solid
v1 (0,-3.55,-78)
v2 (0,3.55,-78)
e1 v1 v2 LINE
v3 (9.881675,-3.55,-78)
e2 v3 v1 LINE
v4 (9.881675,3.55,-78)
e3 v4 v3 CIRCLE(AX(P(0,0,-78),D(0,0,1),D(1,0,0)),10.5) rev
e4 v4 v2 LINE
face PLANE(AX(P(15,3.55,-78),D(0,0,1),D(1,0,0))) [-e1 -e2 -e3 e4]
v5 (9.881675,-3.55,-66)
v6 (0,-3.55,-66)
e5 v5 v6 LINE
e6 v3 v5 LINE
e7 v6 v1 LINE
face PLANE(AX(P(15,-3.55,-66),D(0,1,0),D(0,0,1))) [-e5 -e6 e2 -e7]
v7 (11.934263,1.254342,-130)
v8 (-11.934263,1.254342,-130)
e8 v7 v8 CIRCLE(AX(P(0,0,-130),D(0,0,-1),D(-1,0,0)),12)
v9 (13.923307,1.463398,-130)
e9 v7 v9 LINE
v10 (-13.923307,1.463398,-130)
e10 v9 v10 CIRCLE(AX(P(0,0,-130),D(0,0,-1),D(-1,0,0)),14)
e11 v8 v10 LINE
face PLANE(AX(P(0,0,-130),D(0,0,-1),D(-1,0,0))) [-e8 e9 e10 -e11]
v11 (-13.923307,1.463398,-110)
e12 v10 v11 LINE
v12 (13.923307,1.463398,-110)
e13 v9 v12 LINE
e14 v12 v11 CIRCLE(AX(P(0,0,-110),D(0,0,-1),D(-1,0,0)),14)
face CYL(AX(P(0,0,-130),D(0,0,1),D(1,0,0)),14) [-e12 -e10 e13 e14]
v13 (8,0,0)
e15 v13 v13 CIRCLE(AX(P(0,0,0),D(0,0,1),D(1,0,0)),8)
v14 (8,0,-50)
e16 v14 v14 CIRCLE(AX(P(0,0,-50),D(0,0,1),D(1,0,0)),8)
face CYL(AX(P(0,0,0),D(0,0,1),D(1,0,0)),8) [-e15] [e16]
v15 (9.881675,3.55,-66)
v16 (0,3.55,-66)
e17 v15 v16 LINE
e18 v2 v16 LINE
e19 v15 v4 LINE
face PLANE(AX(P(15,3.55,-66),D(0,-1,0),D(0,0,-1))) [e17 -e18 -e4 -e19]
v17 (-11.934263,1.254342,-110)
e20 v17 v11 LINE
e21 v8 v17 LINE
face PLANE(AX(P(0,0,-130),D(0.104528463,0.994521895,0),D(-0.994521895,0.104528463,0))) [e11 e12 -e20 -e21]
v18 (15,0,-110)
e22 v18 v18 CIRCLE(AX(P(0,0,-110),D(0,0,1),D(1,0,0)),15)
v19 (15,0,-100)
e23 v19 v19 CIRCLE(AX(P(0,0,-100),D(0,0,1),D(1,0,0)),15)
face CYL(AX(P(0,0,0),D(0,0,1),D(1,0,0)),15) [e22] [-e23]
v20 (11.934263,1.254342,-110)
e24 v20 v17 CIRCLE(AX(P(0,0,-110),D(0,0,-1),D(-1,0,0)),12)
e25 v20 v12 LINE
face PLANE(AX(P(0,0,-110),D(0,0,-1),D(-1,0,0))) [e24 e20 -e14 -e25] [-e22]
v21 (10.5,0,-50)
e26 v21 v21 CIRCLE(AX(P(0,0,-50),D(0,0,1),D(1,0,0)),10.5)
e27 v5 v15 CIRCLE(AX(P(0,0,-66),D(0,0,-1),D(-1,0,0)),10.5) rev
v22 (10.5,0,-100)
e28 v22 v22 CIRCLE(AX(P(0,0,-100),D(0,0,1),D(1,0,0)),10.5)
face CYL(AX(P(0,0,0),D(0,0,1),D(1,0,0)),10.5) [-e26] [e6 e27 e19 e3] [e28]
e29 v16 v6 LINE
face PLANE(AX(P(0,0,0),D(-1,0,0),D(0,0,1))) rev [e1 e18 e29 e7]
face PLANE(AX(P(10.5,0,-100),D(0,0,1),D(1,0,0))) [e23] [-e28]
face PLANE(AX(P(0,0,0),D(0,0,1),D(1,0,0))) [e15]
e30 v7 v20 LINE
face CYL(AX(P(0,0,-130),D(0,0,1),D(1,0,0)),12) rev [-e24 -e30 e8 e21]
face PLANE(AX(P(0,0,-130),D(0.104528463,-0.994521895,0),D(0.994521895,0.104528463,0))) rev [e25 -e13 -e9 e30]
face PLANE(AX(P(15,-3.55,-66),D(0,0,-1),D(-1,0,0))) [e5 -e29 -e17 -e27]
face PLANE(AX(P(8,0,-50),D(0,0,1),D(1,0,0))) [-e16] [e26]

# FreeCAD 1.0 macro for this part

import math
import FreeCAD as App
import Part
import Sketcher

V = App.Vector
Q = App.Units.Quantity


def add_polygon(sketch, points):
    """Adds a closed chain of lines whose ends are joined by coincident constraints."""
    first, n = sketch.GeometryCount, len(points)
    for a, b in zip(points, points[1:] + points[:1]):
        sketch.addGeometry(Part.LineSegment(App.Vector(*a, 0), App.Vector(*b, 0)), False)
    for i in range(n):
        sketch.addConstraint(Sketcher.Constraint("Coincident", first + i, 2, first + (i + 1) % n, 1))

doc = App.newDocument("Part")
body = doc.addObject("PartDesign::Body", "Body")

# Sketch on XZ plane
sketch1 = body.newObject("Sketcher::SketchObject", "Sketch")
sketch1.AttachmentSupport = (doc.getObject("XZ_Plane"), [""])
sketch1.MapMode = "FlatFace"
add_polygon(sketch1, [(0, 0), (8, 0), (8, -50), (10.5, -50), (10.5, -100), (15, -100), (15, -110), (0, -110)])  # lines 0-7
sketch1.addConstraint([
    Sketcher.Constraint("Horizontal", 0),
    Sketcher.Constraint("Vertical", 1),
    Sketcher.Constraint("Horizontal", 2),
    Sketcher.Constraint("Vertical", 3),
    Sketcher.Constraint("Horizontal", 4),
    Sketcher.Constraint("Vertical", 5),
    Sketcher.Constraint("Horizontal", 6),
    Sketcher.Constraint("Vertical", 7),
    Sketcher.Constraint("Coincident", 7, 2, -1, 1),
    Sketcher.Constraint("Equal", 1, 3),
    Sketcher.Constraint("DistanceX", 0, 1, 0, 2, Q("8 mm")),
    Sketcher.Constraint("DistanceX", 6, 2, 6, 1, Q("15 mm")),
    Sketcher.Constraint("DistanceY", 1, 2, 1, 1, Q("50 mm")),
    Sketcher.Constraint("DistanceY", 5, 2, 5, 1, Q("10 mm")),
    Sketcher.Constraint("DistanceX", 2, 1, 2, 2, Q("2.5 mm")),
])
revolution = body.newObject("PartDesign::Revolution", "Revolution")
revolution.Profile = sketch1
revolution.ReferenceAxis = (sketch1, ["V_Axis"])
revolution.Angle = 360

# Sketch on XY plane
sketch2 = body.newObject("Sketcher::SketchObject", "Sketch001")
sketch2.AttachmentSupport = (doc.getObject("XY_Plane"), [""])
sketch2.MapMode = "FlatFace"
sketch2.AttachmentOffset = App.Placement(V(0, 0, -110), App.Rotation())
sketch2.addGeometry([
    Part.ArcOfCircle(Part.Circle(V(0, 0, 0), V(0, 0, 1), 12), math.radians(0), math.radians(6)),  # 0
    Part.LineSegment(V(11.9, 1.3, 0), V(13.9, 1.5, 0)),  # 1
    Part.ArcOfCircle(Part.Circle(V(0, 0, 0), V(0, 0, 1), 14), math.radians(0), math.radians(6)),  # 2
    Part.ArcOfCircle(Part.Circle(V(0, 0, 0), V(0, 0, 1), 14), math.radians(180), math.radians(360)),  # 3
    Part.ArcOfCircle(Part.Circle(V(0, 0, 0), V(0, 0, 1), 14), math.radians(174), math.radians(180)),  # 4
    Part.LineSegment(V(-13.9, 1.5, 0), V(-11.9, 1.3, 0)),  # 5
    Part.ArcOfCircle(Part.Circle(V(0, 0, 0), V(0, 0, 1), 12), math.radians(174), math.radians(180)),  # 6
    Part.ArcOfCircle(Part.Circle(V(0, 0, 0), V(0, 0, 1), 12), math.radians(180), math.radians(360)),  # 7
], False)
sketch2.addConstraint([
    Sketcher.Constraint("Coincident", 0, 2, 1, 1),
    Sketcher.Constraint("Coincident", 1, 2, 2, 2),
    Sketcher.Constraint("Tangent", 2, 1, 3, 2),
    Sketcher.Constraint("Tangent", 3, 1, 4, 2),
    Sketcher.Constraint("Coincident", 4, 1, 5, 1),
    Sketcher.Constraint("Coincident", 5, 2, 6, 1),
    Sketcher.Constraint("Tangent", 6, 2, 7, 1),
    Sketcher.Constraint("Tangent", 7, 2, 0, 1),
    Sketcher.Constraint("Coincident", 0, 3, -1, 1),
    Sketcher.Constraint("Coincident", 2, 3, -1, 1),
    Sketcher.Constraint("Equal", 2, 3),
    Sketcher.Constraint("Equal", 3, 4),
    Sketcher.Constraint("Equal", 0, 6),
    Sketcher.Constraint("Equal", 6, 7),
    Sketcher.Constraint("PointOnObject", 2, 1, -1),
    Sketcher.Constraint("PointOnObject", 3, 1, -1),
    Sketcher.Constraint("PointOnObject", 6, 2, -1),
    Sketcher.Constraint("PointOnObject", 7, 2, -1),
    Sketcher.Constraint("Horizontal", 1, 2, 4, 1),
    Sketcher.Constraint("Horizontal", 0, 2, 5, 2),
    Sketcher.Constraint("Radius", 0, Q("12 mm")),
    Sketcher.Constraint("Radius", 2, Q("14 mm")),
    Sketcher.Constraint("Angle", 1, Q("6 deg")),
    Sketcher.Constraint("DistanceY", -1, 1, 1, 2, Q("1.463398 mm")),
])
pad1 = body.newObject("PartDesign::Pad", "Pad")
pad1.Profile = sketch2
pad1.Length = 20
pad1.Reversed = True

# Sketch on YZ plane
sketch3 = body.newObject("Sketcher::SketchObject", "Sketch002")
sketch3.AttachmentSupport = (doc.getObject("YZ_Plane"), [""])
sketch3.MapMode = "FlatFace"
add_polygon(sketch3, [(4, -66), (-4, -66), (-4, -78), (4, -78)])  # lines 0-3
sketch3.addConstraint([
    Sketcher.Constraint("Horizontal", 0),
    Sketcher.Constraint("Vertical", 1),
    Sketcher.Constraint("Horizontal", 2),
    Sketcher.Constraint("Vertical", 3),
    Sketcher.Constraint("DistanceY", 1, 2, 1, 1, Q("12 mm")),
    Sketcher.Constraint("DistanceX", 0, 2, 0, 1, Q("7.1 mm")),
    Sketcher.Constraint("DistanceY", 0, 2, -1, 1, Q("66 mm")),
    Sketcher.Constraint("DistanceX", 0, 2, -1, 1, Q("3.55 mm")),
])
pocket1 = body.newObject("PartDesign::Pocket", "Pocket")
pocket1.Profile = sketch3
pocket1.Type = "ThroughAll"
pocket1.Reversed = True

doc.recompute()
